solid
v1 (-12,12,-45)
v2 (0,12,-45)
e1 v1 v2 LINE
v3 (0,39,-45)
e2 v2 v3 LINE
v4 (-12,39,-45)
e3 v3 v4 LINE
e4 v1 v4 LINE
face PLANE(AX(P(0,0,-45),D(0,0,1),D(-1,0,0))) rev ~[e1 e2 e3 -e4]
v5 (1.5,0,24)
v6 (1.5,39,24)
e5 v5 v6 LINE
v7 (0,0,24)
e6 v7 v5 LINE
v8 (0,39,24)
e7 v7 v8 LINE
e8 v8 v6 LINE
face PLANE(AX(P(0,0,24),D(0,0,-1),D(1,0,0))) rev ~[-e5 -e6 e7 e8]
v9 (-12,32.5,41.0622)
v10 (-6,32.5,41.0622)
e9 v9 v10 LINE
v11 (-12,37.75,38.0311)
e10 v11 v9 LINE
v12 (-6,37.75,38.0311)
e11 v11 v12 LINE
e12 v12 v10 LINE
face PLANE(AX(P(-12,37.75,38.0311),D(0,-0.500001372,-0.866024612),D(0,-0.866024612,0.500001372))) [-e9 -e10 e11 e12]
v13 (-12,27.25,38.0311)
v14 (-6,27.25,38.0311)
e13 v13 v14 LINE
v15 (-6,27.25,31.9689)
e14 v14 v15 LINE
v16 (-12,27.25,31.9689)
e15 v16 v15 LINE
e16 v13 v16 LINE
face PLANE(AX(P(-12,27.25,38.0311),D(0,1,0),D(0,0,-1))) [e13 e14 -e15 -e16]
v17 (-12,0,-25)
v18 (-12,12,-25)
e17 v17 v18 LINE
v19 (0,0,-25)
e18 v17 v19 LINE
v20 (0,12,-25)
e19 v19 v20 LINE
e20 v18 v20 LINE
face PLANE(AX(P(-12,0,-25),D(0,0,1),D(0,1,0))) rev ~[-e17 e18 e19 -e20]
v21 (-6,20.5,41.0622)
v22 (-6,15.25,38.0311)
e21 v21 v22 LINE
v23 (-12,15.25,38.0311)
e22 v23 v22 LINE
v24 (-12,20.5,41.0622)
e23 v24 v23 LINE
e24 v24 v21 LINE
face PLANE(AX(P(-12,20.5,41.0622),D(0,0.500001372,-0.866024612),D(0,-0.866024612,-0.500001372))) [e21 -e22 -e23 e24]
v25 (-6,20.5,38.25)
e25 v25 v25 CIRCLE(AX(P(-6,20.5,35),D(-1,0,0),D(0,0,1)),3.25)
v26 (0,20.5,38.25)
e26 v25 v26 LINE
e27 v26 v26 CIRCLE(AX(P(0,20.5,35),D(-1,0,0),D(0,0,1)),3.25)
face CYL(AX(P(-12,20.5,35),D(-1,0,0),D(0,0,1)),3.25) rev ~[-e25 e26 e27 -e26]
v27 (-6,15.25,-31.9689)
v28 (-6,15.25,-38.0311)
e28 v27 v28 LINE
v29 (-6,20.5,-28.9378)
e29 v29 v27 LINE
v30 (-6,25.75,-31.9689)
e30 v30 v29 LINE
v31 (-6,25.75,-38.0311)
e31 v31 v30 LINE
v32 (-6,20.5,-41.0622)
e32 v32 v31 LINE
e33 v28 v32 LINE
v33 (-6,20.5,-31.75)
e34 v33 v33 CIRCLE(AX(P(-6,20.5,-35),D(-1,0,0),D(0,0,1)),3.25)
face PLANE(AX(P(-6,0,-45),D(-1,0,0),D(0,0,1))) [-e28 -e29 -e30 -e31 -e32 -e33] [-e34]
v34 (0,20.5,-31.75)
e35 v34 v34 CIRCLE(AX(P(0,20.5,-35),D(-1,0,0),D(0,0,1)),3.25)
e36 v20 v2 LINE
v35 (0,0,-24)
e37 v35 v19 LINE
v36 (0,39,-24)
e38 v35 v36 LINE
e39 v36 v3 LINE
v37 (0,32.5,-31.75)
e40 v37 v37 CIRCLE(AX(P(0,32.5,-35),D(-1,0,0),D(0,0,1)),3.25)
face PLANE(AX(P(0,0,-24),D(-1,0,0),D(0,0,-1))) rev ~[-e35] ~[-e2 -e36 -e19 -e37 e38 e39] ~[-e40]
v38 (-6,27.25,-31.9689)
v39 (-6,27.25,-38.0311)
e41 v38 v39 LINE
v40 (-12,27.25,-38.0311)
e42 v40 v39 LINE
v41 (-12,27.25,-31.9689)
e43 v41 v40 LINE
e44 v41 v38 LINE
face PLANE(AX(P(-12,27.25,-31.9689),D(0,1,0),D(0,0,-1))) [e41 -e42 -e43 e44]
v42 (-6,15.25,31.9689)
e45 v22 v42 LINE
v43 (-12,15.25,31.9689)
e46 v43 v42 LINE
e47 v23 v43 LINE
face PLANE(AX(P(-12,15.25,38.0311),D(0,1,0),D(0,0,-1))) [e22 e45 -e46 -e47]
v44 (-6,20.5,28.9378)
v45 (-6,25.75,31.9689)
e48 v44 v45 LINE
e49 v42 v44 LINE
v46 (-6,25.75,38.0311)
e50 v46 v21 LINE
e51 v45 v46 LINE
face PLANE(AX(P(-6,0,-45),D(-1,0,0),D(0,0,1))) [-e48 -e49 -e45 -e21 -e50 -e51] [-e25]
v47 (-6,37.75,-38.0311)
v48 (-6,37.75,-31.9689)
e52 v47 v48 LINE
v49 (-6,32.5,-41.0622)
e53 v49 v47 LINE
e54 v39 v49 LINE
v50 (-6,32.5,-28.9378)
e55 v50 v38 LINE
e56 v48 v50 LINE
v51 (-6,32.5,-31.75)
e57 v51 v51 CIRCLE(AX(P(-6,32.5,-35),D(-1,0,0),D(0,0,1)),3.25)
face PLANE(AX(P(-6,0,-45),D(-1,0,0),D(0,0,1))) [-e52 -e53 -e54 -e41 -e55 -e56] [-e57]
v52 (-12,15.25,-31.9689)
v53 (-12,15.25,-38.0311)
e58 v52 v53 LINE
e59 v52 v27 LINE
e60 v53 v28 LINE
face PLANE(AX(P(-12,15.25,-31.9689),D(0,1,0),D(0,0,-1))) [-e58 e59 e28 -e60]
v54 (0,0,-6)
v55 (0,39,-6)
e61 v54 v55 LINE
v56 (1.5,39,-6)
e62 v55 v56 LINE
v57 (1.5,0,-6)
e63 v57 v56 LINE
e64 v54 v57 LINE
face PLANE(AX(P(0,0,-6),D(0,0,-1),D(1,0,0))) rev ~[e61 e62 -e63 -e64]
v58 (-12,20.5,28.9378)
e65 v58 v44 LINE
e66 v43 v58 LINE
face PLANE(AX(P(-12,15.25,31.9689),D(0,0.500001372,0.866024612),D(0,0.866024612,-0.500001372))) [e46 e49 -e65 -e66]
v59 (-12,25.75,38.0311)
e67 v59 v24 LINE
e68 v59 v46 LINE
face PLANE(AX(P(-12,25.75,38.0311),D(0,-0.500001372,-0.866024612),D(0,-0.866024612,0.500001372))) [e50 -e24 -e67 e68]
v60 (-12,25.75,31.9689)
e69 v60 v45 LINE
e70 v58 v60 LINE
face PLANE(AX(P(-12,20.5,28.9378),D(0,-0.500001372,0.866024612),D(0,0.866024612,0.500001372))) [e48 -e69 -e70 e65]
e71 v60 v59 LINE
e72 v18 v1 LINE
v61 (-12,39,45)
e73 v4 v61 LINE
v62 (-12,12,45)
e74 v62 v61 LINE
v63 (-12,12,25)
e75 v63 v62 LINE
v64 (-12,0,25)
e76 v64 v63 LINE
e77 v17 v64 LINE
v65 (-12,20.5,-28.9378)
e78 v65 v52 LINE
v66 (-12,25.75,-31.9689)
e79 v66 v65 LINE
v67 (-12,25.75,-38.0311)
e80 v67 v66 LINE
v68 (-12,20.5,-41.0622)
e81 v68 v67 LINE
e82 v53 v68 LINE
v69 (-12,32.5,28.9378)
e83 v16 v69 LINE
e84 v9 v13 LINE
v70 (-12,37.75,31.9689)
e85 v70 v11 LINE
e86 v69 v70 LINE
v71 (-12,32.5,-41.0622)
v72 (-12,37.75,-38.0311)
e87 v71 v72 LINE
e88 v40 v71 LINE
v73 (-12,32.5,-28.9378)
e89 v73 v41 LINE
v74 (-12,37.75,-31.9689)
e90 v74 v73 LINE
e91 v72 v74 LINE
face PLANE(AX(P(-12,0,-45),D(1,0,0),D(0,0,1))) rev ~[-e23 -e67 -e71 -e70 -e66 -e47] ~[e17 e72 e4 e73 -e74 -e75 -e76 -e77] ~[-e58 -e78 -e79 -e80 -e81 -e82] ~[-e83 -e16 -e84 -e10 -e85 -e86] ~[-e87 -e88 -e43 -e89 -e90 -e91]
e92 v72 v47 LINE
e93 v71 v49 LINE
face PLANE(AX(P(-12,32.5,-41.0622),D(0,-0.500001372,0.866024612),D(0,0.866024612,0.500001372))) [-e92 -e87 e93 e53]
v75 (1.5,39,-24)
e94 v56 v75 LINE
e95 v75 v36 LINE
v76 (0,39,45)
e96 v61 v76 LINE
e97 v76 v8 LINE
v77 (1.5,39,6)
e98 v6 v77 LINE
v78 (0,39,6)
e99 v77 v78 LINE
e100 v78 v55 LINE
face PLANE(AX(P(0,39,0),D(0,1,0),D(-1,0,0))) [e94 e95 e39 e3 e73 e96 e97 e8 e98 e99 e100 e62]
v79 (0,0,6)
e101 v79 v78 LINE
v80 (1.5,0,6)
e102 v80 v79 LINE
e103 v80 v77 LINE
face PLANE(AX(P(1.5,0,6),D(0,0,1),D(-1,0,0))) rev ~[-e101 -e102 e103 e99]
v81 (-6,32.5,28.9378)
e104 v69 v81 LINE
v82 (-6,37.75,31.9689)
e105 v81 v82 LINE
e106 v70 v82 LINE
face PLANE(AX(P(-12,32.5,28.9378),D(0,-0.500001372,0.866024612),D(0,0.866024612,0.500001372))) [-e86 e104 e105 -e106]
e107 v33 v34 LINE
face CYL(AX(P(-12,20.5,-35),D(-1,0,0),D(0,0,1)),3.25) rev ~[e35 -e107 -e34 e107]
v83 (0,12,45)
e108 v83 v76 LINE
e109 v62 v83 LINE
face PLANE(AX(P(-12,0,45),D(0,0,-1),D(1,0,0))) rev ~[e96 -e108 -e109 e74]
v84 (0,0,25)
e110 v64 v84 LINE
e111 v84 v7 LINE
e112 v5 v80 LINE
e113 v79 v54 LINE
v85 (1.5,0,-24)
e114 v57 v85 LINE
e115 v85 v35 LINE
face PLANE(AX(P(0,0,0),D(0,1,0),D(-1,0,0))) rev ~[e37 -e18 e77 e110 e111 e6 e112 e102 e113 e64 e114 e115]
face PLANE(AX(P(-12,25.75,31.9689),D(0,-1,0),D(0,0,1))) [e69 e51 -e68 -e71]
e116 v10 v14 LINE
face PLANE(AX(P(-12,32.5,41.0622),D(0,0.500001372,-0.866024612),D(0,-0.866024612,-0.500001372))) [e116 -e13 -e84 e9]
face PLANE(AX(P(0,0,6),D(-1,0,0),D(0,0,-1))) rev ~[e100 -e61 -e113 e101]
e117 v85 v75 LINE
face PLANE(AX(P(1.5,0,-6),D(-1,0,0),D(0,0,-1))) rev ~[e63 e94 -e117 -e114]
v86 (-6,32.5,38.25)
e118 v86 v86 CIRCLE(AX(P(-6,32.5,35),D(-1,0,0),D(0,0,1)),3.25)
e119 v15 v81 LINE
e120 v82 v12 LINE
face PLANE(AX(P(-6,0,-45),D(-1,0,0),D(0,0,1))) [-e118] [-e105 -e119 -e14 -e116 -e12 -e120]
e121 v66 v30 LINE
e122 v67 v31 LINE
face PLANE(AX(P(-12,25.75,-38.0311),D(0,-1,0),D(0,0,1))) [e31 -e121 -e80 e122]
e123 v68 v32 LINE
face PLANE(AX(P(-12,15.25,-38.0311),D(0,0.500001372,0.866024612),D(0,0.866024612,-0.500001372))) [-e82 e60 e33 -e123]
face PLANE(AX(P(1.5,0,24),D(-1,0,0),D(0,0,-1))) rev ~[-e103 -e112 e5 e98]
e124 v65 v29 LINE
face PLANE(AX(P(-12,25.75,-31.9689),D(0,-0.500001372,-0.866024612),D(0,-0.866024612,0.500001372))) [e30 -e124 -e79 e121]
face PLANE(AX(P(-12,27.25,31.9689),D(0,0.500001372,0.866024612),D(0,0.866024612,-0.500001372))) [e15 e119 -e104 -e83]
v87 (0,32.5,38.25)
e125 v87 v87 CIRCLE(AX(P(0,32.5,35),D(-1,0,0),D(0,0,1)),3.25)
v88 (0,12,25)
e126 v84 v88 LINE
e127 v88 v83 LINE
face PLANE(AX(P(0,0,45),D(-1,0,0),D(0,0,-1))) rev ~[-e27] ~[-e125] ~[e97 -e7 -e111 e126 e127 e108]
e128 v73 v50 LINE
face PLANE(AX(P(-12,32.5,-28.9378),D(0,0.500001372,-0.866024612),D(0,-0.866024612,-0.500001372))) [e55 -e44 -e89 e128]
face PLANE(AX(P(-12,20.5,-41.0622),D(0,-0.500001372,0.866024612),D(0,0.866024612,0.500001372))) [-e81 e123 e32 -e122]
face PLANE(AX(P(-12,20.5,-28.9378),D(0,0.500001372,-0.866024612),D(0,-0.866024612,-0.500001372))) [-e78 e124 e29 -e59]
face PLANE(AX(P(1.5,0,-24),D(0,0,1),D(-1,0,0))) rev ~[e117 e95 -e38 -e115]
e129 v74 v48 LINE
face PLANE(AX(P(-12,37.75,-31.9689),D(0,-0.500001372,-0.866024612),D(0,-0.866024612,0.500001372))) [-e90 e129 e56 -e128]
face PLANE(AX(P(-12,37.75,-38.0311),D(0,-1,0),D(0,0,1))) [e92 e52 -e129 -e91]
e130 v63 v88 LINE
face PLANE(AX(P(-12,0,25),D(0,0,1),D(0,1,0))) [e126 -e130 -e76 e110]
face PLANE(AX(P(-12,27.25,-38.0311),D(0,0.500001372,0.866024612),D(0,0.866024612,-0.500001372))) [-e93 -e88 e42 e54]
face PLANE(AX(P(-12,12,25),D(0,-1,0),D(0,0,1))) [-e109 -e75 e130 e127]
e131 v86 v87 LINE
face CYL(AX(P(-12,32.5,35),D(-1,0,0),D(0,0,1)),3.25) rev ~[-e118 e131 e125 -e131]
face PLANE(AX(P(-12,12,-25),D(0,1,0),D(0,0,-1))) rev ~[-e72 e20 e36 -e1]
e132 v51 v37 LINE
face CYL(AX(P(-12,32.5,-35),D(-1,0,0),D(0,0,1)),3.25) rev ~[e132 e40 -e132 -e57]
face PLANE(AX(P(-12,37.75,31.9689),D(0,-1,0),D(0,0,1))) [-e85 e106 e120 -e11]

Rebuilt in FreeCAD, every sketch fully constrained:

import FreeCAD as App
import Part
import Sketcher

V = App.Vector
Q = App.Units.Quantity

doc = App.newDocument("Part")
body = doc.addObject("PartDesign::Body", "Body")

sketch1 = body.newObject("Sketcher::SketchObject", "Sketch")
sketch1.AttachmentSupport = (doc.getObject("XZ_Plane"), [""])
sketch1.MapMode = "FlatFace"
sketch1.addGeometry(Part.LineSegment(V(-12, -45, 0), V(-12, 45, 0)), False)
sketch1.addGeometry(Part.LineSegment(V(-12, 45, 0), V(0, 45, 0)), False)
sketch1.addGeometry(Part.LineSegment(V(0, 45, 0), V(0, 24, 0)), False)
sketch1.addGeometry(Part.LineSegment(V(0, 24, 0), V(1.5, 24, 0)), False)
sketch1.addGeometry(Part.LineSegment(V(1.5, 24, 0), V(1.5, 6, 0)), False)
sketch1.addGeometry(Part.LineSegment(V(1.5, 6, 0), V(0, 6, 0)), False)
sketch1.addGeometry(Part.LineSegment(V(0, 6, 0), V(0, -6, 0)), False)
sketch1.addGeometry(Part.LineSegment(V(0, -6, 0), V(1.5, -6, 0)), False)
sketch1.addGeometry(Part.LineSegment(V(1.5, -6, 0), V(1.5, -24, 0)), False)
sketch1.addGeometry(Part.LineSegment(V(1.5, -24, 0), V(0, -24, 0)), False)
sketch1.addGeometry(Part.LineSegment(V(0, -24, 0), V(0, -45, 0)), False)
sketch1.addGeometry(Part.LineSegment(V(0, -45, 0), V(-12, -45, 0)), False)
sketch1.addConstraint(Sketcher.Constraint("Coincident", 0, 2, 1, 1))
sketch1.addConstraint(Sketcher.Constraint("Coincident", 1, 2, 2, 1))
sketch1.addConstraint(Sketcher.Constraint("Coincident", 2, 2, 3, 1))
sketch1.addConstraint(Sketcher.Constraint("Coincident", 3, 2, 4, 1))
sketch1.addConstraint(Sketcher.Constraint("Coincident", 4, 2, 5, 1))
sketch1.addConstraint(Sketcher.Constraint("Coincident", 5, 2, 6, 1))
sketch1.addConstraint(Sketcher.Constraint("Coincident", 6, 2, 7, 1))
sketch1.addConstraint(Sketcher.Constraint("Coincident", 7, 2, 8, 1))
sketch1.addConstraint(Sketcher.Constraint("Coincident", 8, 2, 9, 1))
sketch1.addConstraint(Sketcher.Constraint("Coincident", 9, 2, 10, 1))
sketch1.addConstraint(Sketcher.Constraint("Coincident", 10, 2, 11, 1))
sketch1.addConstraint(Sketcher.Constraint("Coincident", 11, 2, 0, 1))
sketch1.addConstraint(Sketcher.Constraint("Vertical", 0))
sketch1.addConstraint(Sketcher.Constraint("Horizontal", 1))
sketch1.addConstraint(Sketcher.Constraint("Vertical", 2))
sketch1.addConstraint(Sketcher.Constraint("Horizontal", 3))
sketch1.addConstraint(Sketcher.Constraint("Vertical", 4))
sketch1.addConstraint(Sketcher.Constraint("Horizontal", 5))
sketch1.addConstraint(Sketcher.Constraint("Vertical", 6))
sketch1.addConstraint(Sketcher.Constraint("Horizontal", 7))
sketch1.addConstraint(Sketcher.Constraint("Vertical", 8))
sketch1.addConstraint(Sketcher.Constraint("Horizontal", 9))
sketch1.addConstraint(Sketcher.Constraint("Vertical", 10))
sketch1.addConstraint(Sketcher.Constraint("Horizontal", 11))
sketch1.addConstraint(Sketcher.Constraint("Symmetric", 5, 2, 6, 2, -1, 1))
sketch1.addConstraint(Sketcher.Constraint("Symmetric", 2, 2, 9, 2, -1, 1))
sketch1.addConstraint(Sketcher.Constraint("Symmetric", 1, 2, 10, 2, -1))
sketch1.addConstraint(Sketcher.Constraint("Vertical", 4, 2, 7, 2))
sketch1.addConstraint(Sketcher.Constraint("Equal", 11, 6))
sketch1.addConstraint(Sketcher.Constraint("DistanceX", 1, 1, 1, 2, Q("12 mm")))
sketch1.addConstraint(Sketcher.Constraint("DistanceY", 0, 1, 0, 2, Q("90 mm")))
sketch1.addConstraint(Sketcher.Constraint("DistanceY", 2, 2, 2, 1, Q("21 mm")))
sketch1.addConstraint(Sketcher.Constraint("DistanceX", 3, 1, 3, 2, Q("1.5 mm")))
pad1 = body.newObject("PartDesign::Pad", "Pad")
pad1.Profile = sketch1
pad1.Length = 39
pad1.Reversed = True

sketch2 = body.newObject("Sketcher::SketchObject", "Sketch001")
sketch2.AttachmentSupport = (doc.getObject("YZ_Plane"), [""])
sketch2.MapMode = "FlatFace"
sketch2.AttachmentOffset = App.Placement(V(0, 0, -12), App.Rotation())
sketch2.addGeometry(Part.Circle(V(32.5, -35, 0), V(0, 0, 1), 3.25), False)
sketch2.addGeometry(Part.Circle(V(20.5, -35, 0), V(0, 0, 1), 3.25), False)
sketch2.addGeometry(Part.Circle(V(32.5, 35, 0), V(0, 0, 1), 3.25), False)
sketch2.addGeometry(Part.Circle(V(20.5, 35, 0), V(0, 0, 1), 3.25), False)
sketch2.addGeometry(Part.LineSegment(V(12, -25, 0), V(12, -45, 0)), False)
sketch2.addGeometry(Part.LineSegment(V(12, -45, 0), V(0, -45, 0)), False)
sketch2.addGeometry(Part.LineSegment(V(0, -45, 0), V(0, -25, 0)), False)
sketch2.addGeometry(Part.LineSegment(V(0, -25, 0), V(12, -25, 0)), False)
sketch2.addGeometry(Part.LineSegment(V(0, 45, 0), V(12, 45, 0)), False)
sketch2.addGeometry(Part.LineSegment(V(12, 45, 0), V(12, 25, 0)), False)
sketch2.addGeometry(Part.LineSegment(V(12, 25, 0), V(0, 25, 0)), False)
sketch2.addGeometry(Part.LineSegment(V(0, 25, 0), V(0, 45, 0)), False)
sketch2.addConstraint(Sketcher.Constraint("Coincident", 4, 2, 5, 1))
sketch2.addConstraint(Sketcher.Constraint("Coincident", 5, 2, 6, 1))
sketch2.addConstraint(Sketcher.Constraint("Coincident", 6, 2, 7, 1))
sketch2.addConstraint(Sketcher.Constraint("Coincident", 7, 2, 4, 1))
sketch2.addConstraint(Sketcher.Constraint("Coincident", 8, 2, 9, 1))
sketch2.addConstraint(Sketcher.Constraint("Coincident", 9, 2, 10, 1))
sketch2.addConstraint(Sketcher.Constraint("Coincident", 10, 2, 11, 1))
sketch2.addConstraint(Sketcher.Constraint("Coincident", 11, 2, 8, 1))
sketch2.addConstraint(Sketcher.Constraint("Vertical", 4))
sketch2.addConstraint(Sketcher.Constraint("Horizontal", 5))
sketch2.addConstraint(Sketcher.Constraint("Vertical", 6))
sketch2.addConstraint(Sketcher.Constraint("Horizontal", 7))
sketch2.addConstraint(Sketcher.Constraint("Horizontal", 8))
sketch2.addConstraint(Sketcher.Constraint("Vertical", 9))
sketch2.addConstraint(Sketcher.Constraint("Horizontal", 10))
sketch2.addConstraint(Sketcher.Constraint("Vertical", 11))
sketch2.addConstraint(Sketcher.Constraint("Equal", 0, 1))
sketch2.addConstraint(Sketcher.Constraint("Equal", 1, 2))
sketch2.addConstraint(Sketcher.Constraint("Equal", 2, 3))
sketch2.addConstraint(Sketcher.Constraint("Symmetric", 6, 2, 10, 2, -1, 1))
sketch2.addConstraint(Sketcher.Constraint("Symmetric", 0, 3, 2, 3, -1))
sketch2.addConstraint(Sketcher.Constraint("Symmetric", 1, 3, 3, 3, -1))
sketch2.addConstraint(Sketcher.Constraint("Symmetric", 4, 2, 8, 2, -1))
sketch2.addConstraint(Sketcher.Constraint("PointOnObject", 5, 2, -2))
sketch2.addConstraint(Sketcher.Constraint("Horizontal", 0, 3, 1, 3))
sketch2.addConstraint(Sketcher.Constraint("Diameter", 0, Q("6.5 mm")))
sketch2.addConstraint(Sketcher.Constraint("DistanceX", 5, 2, 5, 1, Q("12 mm")))
sketch2.addConstraint(Sketcher.Constraint("DistanceY", 4, 2, 4, 1, Q("20 mm")))
sketch2.addConstraint(Sketcher.Constraint("DistanceX", 1, 3, 0, 3, Q("12 mm")))
sketch2.addConstraint(Sketcher.Constraint("DistanceY", 4, 2, 1, 3, Q("10 mm")))
sketch2.addConstraint(Sketcher.Constraint("DistanceY", 0, 3, -1, 1, Q("35 mm")))
sketch2.addConstraint(Sketcher.Constraint("DistanceX", -1, 1, 0, 3, Q("32.5 mm")))
pocket1 = body.newObject("PartDesign::Pocket", "Pocket")
pocket1.Profile = sketch2
pocket1.Type = "ThroughAll"
pocket1.Reversed = True

sketch3 = body.newObject("Sketcher::SketchObject", "Sketch002")
sketch3.AttachmentSupport = (doc.getObject("YZ_Plane"), [""])
sketch3.MapMode = "FlatFace"
sketch3.AttachmentOffset = App.Placement(V(0, 0, -12), App.Rotation())
sketch3.addGeometry(Part.LineSegment(V(32.5, -28.9378, 0), V(37.75, -31.9689, 0)), False)
sketch3.addGeometry(Part.LineSegment(V(37.75, -31.9689, 0), V(37.75, -38.0311, 0)), False)
sketch3.addGeometry(Part.LineSegment(V(37.75, -38.0311, 0), V(32.5, -41.0622, 0)), False)
sketch3.addGeometry(Part.LineSegment(V(32.5, -41.0622, 0), V(27.25, -38.0311, 0)), False)
sketch3.addGeometry(Part.LineSegment(V(27.25, -38.0311, 0), V(27.25, -31.9689, 0)), False)
sketch3.addGeometry(Part.LineSegment(V(27.25, -31.9689, 0), V(32.5, -28.9378, 0)), False)
sketch3.addGeometry(Part.LineSegment(V(20.5, -28.9378, 0), V(25.75, -31.9689, 0)), False)
sketch3.addGeometry(Part.LineSegment(V(25.75, -31.9689, 0), V(25.75, -38.0311, 0)), False)
sketch3.addGeometry(Part.LineSegment(V(25.75, -38.0311, 0), V(20.5, -41.0622, 0)), False)
sketch3.addGeometry(Part.LineSegment(V(20.5, -41.0622, 0), V(15.25, -38.0311, 0)), False)
sketch3.addGeometry(Part.LineSegment(V(15.25, -38.0311, 0), V(15.25, -31.9689, 0)), False)
sketch3.addGeometry(Part.LineSegment(V(15.25, -31.9689, 0), V(20.5, -28.9378, 0)), False)
sketch3.addGeometry(Part.LineSegment(V(37.75, 38.0311, 0), V(37.75, 31.9689, 0)), False)
sketch3.addGeometry(Part.LineSegment(V(37.75, 31.9689, 0), V(32.5, 28.9378, 0)), False)
sketch3.addGeometry(Part.LineSegment(V(32.5, 28.9378, 0), V(27.25, 31.9689, 0)), False)
sketch3.addGeometry(Part.LineSegment(V(27.25, 31.9689, 0), V(27.25, 38.0311, 0)), False)
sketch3.addGeometry(Part.LineSegment(V(27.25, 38.0311, 0), V(32.5, 41.0622, 0)), False)
sketch3.addGeometry(Part.LineSegment(V(32.5, 41.0622, 0), V(37.75, 38.0311, 0)), False)
sketch3.addGeometry(Part.LineSegment(V(25.75, 38.0311, 0), V(25.75, 31.9689, 0)), False)
sketch3.addGeometry(Part.LineSegment(V(25.75, 31.9689, 0), V(20.5, 28.9378, 0)), False)
sketch3.addGeometry(Part.LineSegment(V(20.5, 28.9378, 0), V(15.25, 31.9689, 0)), False)
sketch3.addGeometry(Part.LineSegment(V(15.25, 31.9689, 0), V(15.25, 38.0311, 0)), False)
sketch3.addGeometry(Part.LineSegment(V(15.25, 38.0311, 0), V(20.5, 41.0622, 0)), False)
sketch3.addGeometry(Part.LineSegment(V(20.5, 41.0622, 0), V(25.75, 38.0311, 0)), False)
sketch3.addConstraint(Sketcher.Constraint("Coincident", 0, 2, 1, 1))
sketch3.addConstraint(Sketcher.Constraint("Coincident", 1, 2, 2, 1))
sketch3.addConstraint(Sketcher.Constraint("Coincident", 2, 2, 3, 1))
sketch3.addConstraint(Sketcher.Constraint("Coincident", 3, 2, 4, 1))
sketch3.addConstraint(Sketcher.Constraint("Coincident", 4, 2, 5, 1))
sketch3.addConstraint(Sketcher.Constraint("Coincident", 5, 2, 0, 1))
sketch3.addConstraint(Sketcher.Constraint("Coincident", 6, 2, 7, 1))
sketch3.addConstraint(Sketcher.Constraint("Coincident", 7, 2, 8, 1))
sketch3.addConstraint(Sketcher.Constraint("Coincident", 8, 2, 9, 1))
sketch3.addConstraint(Sketcher.Constraint("Coincident", 9, 2, 10, 1))
sketch3.addConstraint(Sketcher.Constraint("Coincident", 10, 2, 11, 1))
sketch3.addConstraint(Sketcher.Constraint("Coincident", 11, 2, 6, 1))
sketch3.addConstraint(Sketcher.Constraint("Coincident", 12, 2, 13, 1))
sketch3.addConstraint(Sketcher.Constraint("Coincident", 13, 2, 14, 1))
sketch3.addConstraint(Sketcher.Constraint("Coincident", 14, 2, 15, 1))
sketch3.addConstraint(Sketcher.Constraint("Coincident", 15, 2, 16, 1))
sketch3.addConstraint(Sketcher.Constraint("Coincident", 16, 2, 17, 1))
sketch3.addConstraint(Sketcher.Constraint("Coincident", 17, 2, 12, 1))
sketch3.addConstraint(Sketcher.Constraint("Coincident", 18, 2, 19, 1))
sketch3.addConstraint(Sketcher.Constraint("Coincident", 19, 2, 20, 1))
sketch3.addConstraint(Sketcher.Constraint("Coincident", 20, 2, 21, 1))
sketch3.addConstraint(Sketcher.Constraint("Coincident", 21, 2, 22, 1))
sketch3.addConstraint(Sketcher.Constraint("Coincident", 22, 2, 23, 1))
sketch3.addConstraint(Sketcher.Constraint("Coincident", 23, 2, 18, 1))
sketch3.addConstraint(Sketcher.Constraint("Vertical", 1))
sketch3.addConstraint(Sketcher.Constraint("Vertical", 4))
sketch3.addConstraint(Sketcher.Constraint("Vertical", 7))
sketch3.addConstraint(Sketcher.Constraint("Vertical", 10))
sketch3.addConstraint(Sketcher.Constraint("Vertical", 12))
sketch3.addConstraint(Sketcher.Constraint("Vertical", 15))
sketch3.addConstraint(Sketcher.Constraint("Vertical", 18))
sketch3.addConstraint(Sketcher.Constraint("Vertical", 21))
sketch3.addConstraint(Sketcher.Constraint("Symmetric", 0, 2, 12, 2, -1))
sketch3.addConstraint(Sketcher.Constraint("Symmetric", 5, 2, 13, 2, -1))
sketch3.addConstraint(Sketcher.Constraint("Symmetric", 4, 2, 14, 2, -1))
sketch3.addConstraint(Sketcher.Constraint("Symmetric", 2, 2, 16, 2, -1))
sketch3.addConstraint(Sketcher.Constraint("Symmetric", 6, 2, 18, 2, -1))
sketch3.addConstraint(Sketcher.Constraint("Symmetric", 11, 2, 19, 2, -1))
sketch3.addConstraint(Sketcher.Constraint("Symmetric", 10, 2, 20, 2, -1))
sketch3.addConstraint(Sketcher.Constraint("Symmetric", 8, 2, 22, 2, -1))
sketch3.addConstraint(Sketcher.Constraint("Parallel", 0, 3))
sketch3.addConstraint(Sketcher.Constraint("Parallel", 2, 5))
sketch3.addConstraint(Sketcher.Constraint("Parallel", 3, 6))
sketch3.addConstraint(Sketcher.Constraint("Parallel", 5, 8))
sketch3.addConstraint(Sketcher.Constraint("Parallel", 6, 9))
sketch3.addConstraint(Sketcher.Constraint("Parallel", 8, 11))
sketch3.addConstraint(Sketcher.Constraint("Parallel", 11, 13))
sketch3.addConstraint(Sketcher.Constraint("Parallel", 13, 16))
sketch3.addConstraint(Sketcher.Constraint("Parallel", 14, 17))
sketch3.addConstraint(Sketcher.Constraint("Parallel", 19, 22))
sketch3.addConstraint(Sketcher.Constraint("Parallel", 20, 23))
sketch3.addConstraint(Sketcher.Constraint("Horizontal", 1, 2, 3, 2))
sketch3.addConstraint(Sketcher.Constraint("Horizontal", 0, 2, 4, 2))
sketch3.addConstraint(Sketcher.Constraint("Horizontal", 4, 2, 6, 2))
sketch3.addConstraint(Sketcher.Constraint("Horizontal", 3, 2, 7, 2))
sketch3.addConstraint(Sketcher.Constraint("Horizontal", 2, 2, 8, 2))
sketch3.addConstraint(Sketcher.Constraint("Horizontal", 7, 2, 9, 2))
sketch3.addConstraint(Sketcher.Constraint("Horizontal", 6, 2, 10, 2))
sketch3.addConstraint(Sketcher.Constraint("DistanceX", 6, 2, 0, 2, Q("12 mm")))
sketch3.addConstraint(Sketcher.Constraint("DistanceX", 3, 2, 1, 2, Q("10.5 mm")))
sketch3.addConstraint(Sketcher.Constraint("Angle", 0, Q("-30 deg")))
sketch3.addConstraint(Sketcher.Constraint("DistanceY", 5, 2, 16, 2, Q("70 mm")))
sketch3.addConstraint(Sketcher.Constraint("DistanceX", -1, 1, 2, 2, Q("32.5 mm")))
sketch3.addConstraint(Sketcher.Constraint("DistanceY", 1, 2, 1, 1, Q("6.0622 mm")))
pocket2 = body.newObject("PartDesign::Pocket", "Pocket001")
pocket2.Profile = sketch3
pocket2.Length = 6
pocket2.Reversed = True

doc.recompute()
